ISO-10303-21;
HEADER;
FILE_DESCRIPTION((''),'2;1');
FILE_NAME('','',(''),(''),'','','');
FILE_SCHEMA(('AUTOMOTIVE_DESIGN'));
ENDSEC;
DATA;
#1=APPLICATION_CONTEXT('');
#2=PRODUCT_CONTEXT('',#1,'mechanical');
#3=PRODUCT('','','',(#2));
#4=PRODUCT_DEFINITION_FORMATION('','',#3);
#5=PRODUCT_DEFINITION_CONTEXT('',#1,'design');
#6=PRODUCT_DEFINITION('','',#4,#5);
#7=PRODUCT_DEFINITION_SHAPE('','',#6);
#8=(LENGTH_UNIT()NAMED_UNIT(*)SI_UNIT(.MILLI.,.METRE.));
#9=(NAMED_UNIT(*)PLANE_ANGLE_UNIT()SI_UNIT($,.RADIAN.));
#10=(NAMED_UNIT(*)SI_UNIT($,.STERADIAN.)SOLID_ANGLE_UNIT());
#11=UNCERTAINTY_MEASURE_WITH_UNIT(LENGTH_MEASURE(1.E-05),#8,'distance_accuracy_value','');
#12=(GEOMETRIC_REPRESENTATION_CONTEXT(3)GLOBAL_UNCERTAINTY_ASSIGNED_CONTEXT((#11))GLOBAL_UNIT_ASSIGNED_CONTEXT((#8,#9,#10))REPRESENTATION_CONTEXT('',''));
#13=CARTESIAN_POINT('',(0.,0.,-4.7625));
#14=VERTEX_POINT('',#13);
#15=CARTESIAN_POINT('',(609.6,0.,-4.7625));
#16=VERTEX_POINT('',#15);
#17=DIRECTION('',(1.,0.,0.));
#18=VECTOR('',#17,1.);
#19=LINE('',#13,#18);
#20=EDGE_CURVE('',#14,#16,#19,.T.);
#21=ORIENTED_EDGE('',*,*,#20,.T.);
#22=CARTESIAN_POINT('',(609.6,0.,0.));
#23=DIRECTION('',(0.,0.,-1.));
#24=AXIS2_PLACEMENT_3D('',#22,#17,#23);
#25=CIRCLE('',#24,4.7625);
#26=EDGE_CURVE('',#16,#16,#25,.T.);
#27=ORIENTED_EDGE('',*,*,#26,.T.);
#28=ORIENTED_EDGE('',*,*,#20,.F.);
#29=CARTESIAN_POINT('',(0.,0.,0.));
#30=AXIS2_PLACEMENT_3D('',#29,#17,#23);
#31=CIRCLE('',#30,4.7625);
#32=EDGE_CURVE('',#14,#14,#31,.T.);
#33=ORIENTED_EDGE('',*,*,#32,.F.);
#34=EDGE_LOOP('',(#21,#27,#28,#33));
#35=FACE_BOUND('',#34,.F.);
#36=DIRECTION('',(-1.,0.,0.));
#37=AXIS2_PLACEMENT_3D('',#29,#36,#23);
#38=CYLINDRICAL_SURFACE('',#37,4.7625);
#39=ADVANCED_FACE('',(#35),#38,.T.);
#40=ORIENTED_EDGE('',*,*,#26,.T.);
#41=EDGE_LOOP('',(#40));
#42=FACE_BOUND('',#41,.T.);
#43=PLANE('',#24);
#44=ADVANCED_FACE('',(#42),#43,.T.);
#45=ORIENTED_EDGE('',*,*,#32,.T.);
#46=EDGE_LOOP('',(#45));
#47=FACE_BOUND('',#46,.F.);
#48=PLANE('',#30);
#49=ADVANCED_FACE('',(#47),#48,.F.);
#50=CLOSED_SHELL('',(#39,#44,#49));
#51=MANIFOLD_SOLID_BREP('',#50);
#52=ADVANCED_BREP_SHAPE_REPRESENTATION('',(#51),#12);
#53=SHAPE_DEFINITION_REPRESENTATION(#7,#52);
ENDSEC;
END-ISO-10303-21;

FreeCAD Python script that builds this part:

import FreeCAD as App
import Part
import Sketcher
from FreeCAD import Vector
Q = App.Units.Quantity

doc = App.newDocument("Part")
body = doc.addObject("PartDesign::Body", "Body")

# Sketch on YZ plane
sketch1 = doc.addObject("Sketcher::SketchObject", "Sketch")
body.addObject(sketch1)
sketch1.AttachmentSupport = (doc.YZ_Plane, [""])
sketch1.MapMode = "FlatFace"
sketch1.addGeometry(Part.Circle(Vector(0, 0, 0), Vector(0, 0, 1), 4.8), False)
sketch1.addConstraint([
    Sketcher.Constraint("Coincident", 0, 3, -1, 1),
    Sketcher.Constraint("Diameter", 0, Q("0.375 in")),
])
pad1 = doc.addObject("PartDesign::Pad", "Pad")
body.addObject(pad1)
pad1.Profile = sketch1
pad1.Length = Q("24 in")

doc.recompute()
